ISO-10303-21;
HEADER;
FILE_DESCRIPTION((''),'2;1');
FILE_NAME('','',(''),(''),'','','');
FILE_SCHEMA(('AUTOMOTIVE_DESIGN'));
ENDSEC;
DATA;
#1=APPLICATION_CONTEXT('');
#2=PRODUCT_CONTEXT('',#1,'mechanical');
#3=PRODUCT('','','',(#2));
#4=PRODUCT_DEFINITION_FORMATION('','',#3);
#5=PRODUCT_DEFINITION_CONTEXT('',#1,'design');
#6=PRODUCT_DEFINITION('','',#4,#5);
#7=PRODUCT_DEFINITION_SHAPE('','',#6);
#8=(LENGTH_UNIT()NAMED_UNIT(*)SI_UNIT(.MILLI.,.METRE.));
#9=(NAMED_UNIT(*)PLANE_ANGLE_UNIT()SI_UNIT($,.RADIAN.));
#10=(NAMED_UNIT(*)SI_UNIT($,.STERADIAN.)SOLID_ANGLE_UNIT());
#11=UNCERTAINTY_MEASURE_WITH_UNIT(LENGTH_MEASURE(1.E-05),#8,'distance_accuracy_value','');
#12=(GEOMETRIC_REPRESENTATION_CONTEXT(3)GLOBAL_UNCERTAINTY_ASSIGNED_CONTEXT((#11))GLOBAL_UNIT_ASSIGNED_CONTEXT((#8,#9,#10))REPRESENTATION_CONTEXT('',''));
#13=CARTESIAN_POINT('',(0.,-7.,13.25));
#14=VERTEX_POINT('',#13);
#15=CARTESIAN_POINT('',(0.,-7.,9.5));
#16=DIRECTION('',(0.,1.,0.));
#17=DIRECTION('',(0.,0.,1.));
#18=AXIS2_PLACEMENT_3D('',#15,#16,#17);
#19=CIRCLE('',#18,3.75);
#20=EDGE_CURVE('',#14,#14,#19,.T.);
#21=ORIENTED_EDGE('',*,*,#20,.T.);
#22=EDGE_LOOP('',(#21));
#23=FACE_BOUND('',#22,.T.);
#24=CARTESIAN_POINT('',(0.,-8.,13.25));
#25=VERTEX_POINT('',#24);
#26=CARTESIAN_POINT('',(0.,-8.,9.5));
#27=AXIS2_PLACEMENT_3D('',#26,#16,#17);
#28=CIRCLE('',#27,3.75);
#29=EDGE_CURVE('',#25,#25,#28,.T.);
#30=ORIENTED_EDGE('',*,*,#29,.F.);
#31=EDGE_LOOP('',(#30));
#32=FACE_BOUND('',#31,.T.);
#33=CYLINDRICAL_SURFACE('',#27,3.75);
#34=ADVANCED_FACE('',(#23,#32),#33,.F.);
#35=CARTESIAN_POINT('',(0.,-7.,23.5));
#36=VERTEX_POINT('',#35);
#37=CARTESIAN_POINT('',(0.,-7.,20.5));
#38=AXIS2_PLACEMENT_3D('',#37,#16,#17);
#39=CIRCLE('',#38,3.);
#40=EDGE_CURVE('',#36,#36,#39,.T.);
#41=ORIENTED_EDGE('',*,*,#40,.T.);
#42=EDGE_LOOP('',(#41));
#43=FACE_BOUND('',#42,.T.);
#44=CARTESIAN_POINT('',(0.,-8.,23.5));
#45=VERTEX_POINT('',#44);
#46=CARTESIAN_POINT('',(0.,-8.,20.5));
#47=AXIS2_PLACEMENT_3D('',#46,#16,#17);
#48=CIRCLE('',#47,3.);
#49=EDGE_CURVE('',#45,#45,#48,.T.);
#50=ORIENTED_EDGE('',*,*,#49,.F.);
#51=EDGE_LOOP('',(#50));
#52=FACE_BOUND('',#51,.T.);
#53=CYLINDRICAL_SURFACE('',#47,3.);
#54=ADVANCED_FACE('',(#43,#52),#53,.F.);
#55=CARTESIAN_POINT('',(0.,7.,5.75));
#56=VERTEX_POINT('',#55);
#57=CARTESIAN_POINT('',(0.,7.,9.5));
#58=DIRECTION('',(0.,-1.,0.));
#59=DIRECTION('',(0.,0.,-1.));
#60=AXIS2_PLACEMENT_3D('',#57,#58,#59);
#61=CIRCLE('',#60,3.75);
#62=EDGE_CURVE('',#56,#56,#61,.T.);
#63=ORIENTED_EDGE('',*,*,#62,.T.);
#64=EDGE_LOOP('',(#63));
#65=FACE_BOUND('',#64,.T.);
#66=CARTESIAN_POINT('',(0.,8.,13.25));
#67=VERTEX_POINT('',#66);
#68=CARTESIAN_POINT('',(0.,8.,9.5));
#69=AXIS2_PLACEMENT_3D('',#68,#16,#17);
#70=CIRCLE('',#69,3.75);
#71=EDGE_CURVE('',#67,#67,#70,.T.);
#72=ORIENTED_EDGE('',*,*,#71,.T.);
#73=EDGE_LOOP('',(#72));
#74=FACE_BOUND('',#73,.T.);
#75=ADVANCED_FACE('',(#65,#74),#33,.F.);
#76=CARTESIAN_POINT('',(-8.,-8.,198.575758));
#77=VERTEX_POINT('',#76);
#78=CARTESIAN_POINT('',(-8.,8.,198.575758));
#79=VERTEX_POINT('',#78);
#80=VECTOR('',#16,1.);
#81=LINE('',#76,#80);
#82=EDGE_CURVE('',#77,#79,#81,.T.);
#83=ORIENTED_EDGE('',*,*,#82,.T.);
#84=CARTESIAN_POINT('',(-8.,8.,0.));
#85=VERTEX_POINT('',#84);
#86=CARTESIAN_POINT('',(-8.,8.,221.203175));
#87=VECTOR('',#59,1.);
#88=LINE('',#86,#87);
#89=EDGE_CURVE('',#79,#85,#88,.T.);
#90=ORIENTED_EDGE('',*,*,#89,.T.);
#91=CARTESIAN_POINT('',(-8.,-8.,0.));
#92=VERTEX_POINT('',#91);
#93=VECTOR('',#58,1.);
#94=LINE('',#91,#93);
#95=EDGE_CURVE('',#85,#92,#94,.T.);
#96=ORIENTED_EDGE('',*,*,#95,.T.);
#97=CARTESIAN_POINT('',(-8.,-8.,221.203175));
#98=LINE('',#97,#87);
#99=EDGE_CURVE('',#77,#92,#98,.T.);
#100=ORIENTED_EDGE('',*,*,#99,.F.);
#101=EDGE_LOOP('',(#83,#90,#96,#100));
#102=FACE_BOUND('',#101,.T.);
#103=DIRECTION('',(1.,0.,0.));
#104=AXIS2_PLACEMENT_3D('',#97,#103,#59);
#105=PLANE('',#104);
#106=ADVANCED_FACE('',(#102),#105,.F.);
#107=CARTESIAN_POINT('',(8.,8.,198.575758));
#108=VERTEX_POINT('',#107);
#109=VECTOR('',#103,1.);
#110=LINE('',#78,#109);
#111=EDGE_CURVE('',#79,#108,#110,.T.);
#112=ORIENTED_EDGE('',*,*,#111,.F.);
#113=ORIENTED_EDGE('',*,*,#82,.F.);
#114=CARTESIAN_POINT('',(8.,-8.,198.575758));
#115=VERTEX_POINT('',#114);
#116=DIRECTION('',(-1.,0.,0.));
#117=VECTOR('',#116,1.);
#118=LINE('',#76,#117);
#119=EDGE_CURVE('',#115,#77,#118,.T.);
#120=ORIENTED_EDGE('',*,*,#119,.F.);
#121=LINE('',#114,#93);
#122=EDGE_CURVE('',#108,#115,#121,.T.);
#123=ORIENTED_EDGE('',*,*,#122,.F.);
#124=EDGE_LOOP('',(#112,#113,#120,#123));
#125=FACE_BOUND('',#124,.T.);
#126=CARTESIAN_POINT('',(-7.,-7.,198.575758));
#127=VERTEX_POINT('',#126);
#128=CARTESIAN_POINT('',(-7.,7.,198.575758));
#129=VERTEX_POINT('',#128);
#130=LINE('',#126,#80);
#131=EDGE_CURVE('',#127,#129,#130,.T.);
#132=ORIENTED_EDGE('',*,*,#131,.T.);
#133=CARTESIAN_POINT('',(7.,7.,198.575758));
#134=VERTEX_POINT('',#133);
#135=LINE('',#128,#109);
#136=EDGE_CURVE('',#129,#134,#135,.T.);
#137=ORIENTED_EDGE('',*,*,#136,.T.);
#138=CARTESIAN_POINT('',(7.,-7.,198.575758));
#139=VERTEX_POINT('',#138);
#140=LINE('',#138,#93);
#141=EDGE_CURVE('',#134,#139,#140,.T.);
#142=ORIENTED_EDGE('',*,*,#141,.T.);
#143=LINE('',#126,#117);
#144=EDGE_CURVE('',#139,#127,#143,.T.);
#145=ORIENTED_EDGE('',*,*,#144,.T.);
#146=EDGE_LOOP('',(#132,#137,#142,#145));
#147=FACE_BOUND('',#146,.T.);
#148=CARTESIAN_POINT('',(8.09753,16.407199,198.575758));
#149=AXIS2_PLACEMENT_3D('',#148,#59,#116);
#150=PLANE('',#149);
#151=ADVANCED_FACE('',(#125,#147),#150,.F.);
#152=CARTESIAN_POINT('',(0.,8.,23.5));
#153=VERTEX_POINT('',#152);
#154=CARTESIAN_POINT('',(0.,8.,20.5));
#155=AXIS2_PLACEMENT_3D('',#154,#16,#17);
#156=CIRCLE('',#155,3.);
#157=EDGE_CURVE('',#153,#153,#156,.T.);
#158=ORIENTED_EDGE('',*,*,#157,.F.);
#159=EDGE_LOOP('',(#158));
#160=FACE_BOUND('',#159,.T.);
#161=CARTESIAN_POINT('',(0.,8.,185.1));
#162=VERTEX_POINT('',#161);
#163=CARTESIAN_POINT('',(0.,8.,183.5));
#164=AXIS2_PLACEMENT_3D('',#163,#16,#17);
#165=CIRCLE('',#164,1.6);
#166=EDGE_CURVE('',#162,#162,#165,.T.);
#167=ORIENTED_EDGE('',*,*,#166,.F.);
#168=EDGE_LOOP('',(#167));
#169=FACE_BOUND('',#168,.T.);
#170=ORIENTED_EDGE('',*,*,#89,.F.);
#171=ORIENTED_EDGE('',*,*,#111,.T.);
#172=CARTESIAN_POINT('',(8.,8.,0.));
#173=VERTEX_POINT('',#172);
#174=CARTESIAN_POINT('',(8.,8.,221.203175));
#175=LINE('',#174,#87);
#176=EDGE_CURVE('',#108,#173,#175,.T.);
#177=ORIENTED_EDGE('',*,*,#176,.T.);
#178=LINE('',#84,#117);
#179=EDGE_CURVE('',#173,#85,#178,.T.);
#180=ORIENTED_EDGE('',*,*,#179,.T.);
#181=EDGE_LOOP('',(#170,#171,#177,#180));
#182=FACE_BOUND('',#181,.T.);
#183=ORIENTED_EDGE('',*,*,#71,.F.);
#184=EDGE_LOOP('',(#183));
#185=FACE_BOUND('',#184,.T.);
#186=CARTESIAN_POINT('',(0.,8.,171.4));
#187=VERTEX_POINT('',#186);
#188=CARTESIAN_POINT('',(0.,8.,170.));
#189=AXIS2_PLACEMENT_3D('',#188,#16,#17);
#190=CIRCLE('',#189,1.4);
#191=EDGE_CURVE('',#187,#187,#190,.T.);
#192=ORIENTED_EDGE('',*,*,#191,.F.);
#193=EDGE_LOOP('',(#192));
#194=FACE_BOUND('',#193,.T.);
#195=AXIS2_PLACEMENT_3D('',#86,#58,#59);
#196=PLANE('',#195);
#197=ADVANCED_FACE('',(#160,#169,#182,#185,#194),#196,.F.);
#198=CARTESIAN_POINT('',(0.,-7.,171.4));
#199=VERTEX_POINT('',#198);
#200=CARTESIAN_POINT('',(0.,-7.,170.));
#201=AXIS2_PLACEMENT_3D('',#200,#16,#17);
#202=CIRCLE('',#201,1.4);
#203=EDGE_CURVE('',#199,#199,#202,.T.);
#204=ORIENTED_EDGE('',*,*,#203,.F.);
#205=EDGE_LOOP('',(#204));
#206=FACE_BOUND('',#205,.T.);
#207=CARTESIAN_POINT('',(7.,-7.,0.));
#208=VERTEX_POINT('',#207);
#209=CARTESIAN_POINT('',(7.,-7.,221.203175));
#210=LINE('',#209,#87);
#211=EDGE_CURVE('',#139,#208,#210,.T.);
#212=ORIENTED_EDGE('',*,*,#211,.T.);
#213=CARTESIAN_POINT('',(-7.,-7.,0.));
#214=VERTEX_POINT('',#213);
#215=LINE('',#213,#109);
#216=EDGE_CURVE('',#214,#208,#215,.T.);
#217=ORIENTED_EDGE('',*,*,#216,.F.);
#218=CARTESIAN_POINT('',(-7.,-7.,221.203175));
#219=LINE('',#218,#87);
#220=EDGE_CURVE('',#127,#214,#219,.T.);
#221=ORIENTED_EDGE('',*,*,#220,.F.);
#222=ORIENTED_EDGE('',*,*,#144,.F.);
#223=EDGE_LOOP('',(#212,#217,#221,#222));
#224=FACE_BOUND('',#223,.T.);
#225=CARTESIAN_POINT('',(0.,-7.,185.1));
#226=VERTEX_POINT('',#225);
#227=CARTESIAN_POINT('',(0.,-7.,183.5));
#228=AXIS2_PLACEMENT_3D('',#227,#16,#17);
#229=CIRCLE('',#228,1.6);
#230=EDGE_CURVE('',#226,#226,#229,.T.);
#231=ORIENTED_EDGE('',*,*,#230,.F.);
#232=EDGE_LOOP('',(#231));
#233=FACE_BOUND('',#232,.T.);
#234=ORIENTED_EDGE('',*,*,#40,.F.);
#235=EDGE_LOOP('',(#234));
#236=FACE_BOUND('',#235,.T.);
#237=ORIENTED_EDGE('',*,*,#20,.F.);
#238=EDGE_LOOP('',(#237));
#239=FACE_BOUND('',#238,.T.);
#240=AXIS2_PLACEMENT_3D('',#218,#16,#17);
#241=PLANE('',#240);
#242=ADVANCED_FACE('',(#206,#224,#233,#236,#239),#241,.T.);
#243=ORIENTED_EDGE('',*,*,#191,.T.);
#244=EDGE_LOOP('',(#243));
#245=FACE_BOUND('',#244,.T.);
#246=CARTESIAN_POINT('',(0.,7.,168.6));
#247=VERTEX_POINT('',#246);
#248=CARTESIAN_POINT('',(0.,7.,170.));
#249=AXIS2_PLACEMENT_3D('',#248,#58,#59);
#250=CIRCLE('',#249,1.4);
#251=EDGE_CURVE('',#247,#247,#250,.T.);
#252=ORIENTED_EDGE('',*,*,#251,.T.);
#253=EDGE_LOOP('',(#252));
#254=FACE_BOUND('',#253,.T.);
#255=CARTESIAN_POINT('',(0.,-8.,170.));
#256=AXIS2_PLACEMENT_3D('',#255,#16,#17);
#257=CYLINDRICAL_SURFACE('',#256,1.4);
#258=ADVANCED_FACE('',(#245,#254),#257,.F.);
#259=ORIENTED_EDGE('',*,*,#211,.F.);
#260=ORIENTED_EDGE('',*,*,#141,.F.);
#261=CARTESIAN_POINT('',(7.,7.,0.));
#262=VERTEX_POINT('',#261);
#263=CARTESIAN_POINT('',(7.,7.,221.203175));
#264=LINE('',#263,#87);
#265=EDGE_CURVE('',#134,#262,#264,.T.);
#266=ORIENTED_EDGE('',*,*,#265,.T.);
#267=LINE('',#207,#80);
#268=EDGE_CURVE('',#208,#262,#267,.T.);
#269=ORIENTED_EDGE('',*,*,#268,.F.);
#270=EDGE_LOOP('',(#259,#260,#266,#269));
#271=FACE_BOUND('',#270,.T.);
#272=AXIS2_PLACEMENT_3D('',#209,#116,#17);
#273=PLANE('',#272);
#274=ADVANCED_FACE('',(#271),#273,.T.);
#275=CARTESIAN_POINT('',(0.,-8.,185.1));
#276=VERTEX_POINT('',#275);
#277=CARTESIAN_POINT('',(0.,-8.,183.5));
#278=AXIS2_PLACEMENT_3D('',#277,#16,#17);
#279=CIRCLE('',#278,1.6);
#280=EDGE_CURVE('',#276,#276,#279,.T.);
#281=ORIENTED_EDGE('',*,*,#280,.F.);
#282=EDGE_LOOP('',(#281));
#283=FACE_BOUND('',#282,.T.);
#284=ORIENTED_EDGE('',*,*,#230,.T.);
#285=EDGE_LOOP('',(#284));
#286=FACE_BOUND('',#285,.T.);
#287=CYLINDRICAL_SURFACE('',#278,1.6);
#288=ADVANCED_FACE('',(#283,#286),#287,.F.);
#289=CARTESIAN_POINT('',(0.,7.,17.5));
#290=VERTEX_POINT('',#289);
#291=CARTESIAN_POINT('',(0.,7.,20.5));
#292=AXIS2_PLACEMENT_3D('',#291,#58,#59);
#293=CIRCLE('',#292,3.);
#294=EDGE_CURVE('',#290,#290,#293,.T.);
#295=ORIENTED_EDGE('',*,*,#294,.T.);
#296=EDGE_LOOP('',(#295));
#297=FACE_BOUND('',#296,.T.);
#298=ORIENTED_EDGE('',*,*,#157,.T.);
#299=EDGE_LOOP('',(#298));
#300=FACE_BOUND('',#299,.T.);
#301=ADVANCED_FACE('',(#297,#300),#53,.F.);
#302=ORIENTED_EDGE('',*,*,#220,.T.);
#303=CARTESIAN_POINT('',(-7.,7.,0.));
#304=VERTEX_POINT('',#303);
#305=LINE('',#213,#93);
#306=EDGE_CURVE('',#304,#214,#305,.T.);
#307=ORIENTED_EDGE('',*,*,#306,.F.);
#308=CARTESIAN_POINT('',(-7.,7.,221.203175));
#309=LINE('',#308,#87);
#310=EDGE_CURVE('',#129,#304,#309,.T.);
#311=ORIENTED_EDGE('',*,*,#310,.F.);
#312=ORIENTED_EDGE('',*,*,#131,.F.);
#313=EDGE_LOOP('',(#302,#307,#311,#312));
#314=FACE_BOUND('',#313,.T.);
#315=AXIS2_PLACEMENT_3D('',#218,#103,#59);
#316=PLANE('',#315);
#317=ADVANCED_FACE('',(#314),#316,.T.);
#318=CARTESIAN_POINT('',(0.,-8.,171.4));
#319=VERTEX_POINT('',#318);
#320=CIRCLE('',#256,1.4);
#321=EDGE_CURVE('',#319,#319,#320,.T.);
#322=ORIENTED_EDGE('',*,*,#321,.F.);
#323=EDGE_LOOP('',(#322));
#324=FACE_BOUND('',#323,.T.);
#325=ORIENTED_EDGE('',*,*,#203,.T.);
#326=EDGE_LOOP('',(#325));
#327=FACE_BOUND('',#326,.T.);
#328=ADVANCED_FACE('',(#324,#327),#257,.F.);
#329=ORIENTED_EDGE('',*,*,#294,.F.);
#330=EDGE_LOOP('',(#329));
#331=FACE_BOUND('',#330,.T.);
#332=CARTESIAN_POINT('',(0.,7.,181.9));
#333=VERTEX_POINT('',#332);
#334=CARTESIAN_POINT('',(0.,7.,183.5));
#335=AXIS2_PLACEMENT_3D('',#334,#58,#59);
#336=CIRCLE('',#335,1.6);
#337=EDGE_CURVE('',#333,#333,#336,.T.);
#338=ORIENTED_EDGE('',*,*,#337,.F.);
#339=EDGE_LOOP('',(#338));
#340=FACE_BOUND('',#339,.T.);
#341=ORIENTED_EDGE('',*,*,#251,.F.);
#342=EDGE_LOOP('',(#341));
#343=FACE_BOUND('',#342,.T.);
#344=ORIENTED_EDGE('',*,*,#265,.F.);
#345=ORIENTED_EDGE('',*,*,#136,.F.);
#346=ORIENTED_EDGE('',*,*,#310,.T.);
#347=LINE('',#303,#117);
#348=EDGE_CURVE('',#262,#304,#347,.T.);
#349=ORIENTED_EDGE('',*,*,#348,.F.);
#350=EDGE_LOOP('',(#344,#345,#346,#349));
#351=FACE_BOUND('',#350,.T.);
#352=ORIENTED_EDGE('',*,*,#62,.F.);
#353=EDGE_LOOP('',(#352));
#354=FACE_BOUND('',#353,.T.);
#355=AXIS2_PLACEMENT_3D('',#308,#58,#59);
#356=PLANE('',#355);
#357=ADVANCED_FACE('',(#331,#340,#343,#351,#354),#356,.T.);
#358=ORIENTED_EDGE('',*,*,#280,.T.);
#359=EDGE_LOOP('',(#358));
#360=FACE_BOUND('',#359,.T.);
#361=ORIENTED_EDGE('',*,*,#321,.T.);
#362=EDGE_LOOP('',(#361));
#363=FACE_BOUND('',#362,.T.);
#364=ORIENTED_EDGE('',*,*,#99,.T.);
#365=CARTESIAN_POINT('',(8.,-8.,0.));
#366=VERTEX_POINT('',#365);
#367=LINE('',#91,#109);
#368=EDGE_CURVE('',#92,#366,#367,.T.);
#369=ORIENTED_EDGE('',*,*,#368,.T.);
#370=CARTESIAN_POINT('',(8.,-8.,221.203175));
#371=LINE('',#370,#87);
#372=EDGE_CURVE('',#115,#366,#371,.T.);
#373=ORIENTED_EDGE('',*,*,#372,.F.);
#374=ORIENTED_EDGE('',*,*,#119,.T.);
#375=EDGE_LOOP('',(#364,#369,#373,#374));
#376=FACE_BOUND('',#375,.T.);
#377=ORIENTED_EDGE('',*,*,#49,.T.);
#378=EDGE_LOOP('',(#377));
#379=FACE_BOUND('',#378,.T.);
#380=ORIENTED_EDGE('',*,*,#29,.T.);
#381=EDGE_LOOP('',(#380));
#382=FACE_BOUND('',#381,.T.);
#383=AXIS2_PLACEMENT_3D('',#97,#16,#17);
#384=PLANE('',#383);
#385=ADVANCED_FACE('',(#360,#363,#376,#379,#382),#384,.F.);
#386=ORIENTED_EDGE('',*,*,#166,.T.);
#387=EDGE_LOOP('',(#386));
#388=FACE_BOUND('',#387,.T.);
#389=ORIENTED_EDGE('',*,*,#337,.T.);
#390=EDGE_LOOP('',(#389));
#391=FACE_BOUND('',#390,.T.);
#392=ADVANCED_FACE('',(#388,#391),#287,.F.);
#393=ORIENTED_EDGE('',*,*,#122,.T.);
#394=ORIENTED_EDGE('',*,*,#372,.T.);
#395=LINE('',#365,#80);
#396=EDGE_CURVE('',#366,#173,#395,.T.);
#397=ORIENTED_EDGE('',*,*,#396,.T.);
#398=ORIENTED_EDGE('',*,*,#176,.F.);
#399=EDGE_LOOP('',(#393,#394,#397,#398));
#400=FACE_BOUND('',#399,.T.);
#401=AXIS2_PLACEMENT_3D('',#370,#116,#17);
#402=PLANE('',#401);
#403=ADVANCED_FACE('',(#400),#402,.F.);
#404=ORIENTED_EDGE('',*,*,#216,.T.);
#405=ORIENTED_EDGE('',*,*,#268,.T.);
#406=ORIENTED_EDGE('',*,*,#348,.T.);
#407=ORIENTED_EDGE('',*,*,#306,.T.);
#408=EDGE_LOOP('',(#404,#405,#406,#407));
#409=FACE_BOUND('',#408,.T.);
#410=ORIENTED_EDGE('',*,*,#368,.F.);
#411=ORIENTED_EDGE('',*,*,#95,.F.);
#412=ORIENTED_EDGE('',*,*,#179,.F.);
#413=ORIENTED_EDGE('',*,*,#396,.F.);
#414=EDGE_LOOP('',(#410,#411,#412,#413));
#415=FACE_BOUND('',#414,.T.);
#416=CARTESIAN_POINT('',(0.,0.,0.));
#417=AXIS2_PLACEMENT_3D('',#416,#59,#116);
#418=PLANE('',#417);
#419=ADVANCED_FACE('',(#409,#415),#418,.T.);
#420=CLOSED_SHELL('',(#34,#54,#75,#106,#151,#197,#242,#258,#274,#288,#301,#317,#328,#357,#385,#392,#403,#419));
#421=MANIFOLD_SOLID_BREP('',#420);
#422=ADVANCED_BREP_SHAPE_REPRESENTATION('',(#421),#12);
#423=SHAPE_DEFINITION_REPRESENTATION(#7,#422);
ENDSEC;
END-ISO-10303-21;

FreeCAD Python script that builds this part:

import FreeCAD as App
import Part
import Sketcher

V = App.Vector

doc = App.newDocument("Part")
params = doc.addObject("Spreadsheet::Sheet", "Params")
for row, (alias, value) in enumerate([
    ("sketch1_width", "16 mm"),
    ("sketch1_width2", "14 mm"),
    ("pad1_length", "198.575758 mm"),
    ("sketch2_diameter", "6 mm"),
    ("sketch2_diameter2", "7.5 mm"),
    ("sketch2_diameter3", "2.8 mm"),
    ("sketch2_diameter4", "3.2 mm"),
], start=1):
    params.set(f"A{row}", alias)
    params.set(f"B{row}", "=" + value)
    params.setAlias(f"B{row}", alias)

body = doc.addObject("PartDesign::Body", "Body")

sketch1 = doc.addObject("Sketcher::SketchObject", "Sketch")
body.addObject(sketch1)
sketch1.AttachmentSupport = (doc.XY_Plane, [""])
sketch1.MapMode = "FlatFace"
sketch1.addGeometry(Part.LineSegment(V(-8, 8, 0), V(-8, -8, 0)), False)
sketch1.addGeometry(Part.LineSegment(V(-8, -8, 0), V(8, -8, 0)), False)
sketch1.addGeometry(Part.LineSegment(V(8, -8, 0), V(8, 8, 0)), False)
sketch1.addGeometry(Part.LineSegment(V(8, 8, 0), V(-8, 8, 0)), False)
sketch1.addGeometry(Part.LineSegment(V(7, -7, 0), V(-7, -7, 0)), False)
sketch1.addGeometry(Part.LineSegment(V(-7, -7, 0), V(-7, 7, 0)), False)
sketch1.addGeometry(Part.LineSegment(V(-7, 7, 0), V(7, 7, 0)), False)
sketch1.addGeometry(Part.LineSegment(V(7, 7, 0), V(7, -7, 0)), False)
sketch1.addConstraint(Sketcher.Constraint("Coincident", 0, 2, 1, 1))
sketch1.addConstraint(Sketcher.Constraint("Coincident", 1, 2, 2, 1))
sketch1.addConstraint(Sketcher.Constraint("Coincident", 2, 2, 3, 1))
sketch1.addConstraint(Sketcher.Constraint("Coincident", 3, 2, 0, 1))
sketch1.addConstraint(Sketcher.Constraint("Coincident", 4, 2, 5, 1))
sketch1.addConstraint(Sketcher.Constraint("Coincident", 5, 2, 6, 1))
sketch1.addConstraint(Sketcher.Constraint("Coincident", 6, 2, 7, 1))
sketch1.addConstraint(Sketcher.Constraint("Coincident", 7, 2, 4, 1))
sketch1.addConstraint(Sketcher.Constraint("Vertical", 0))
sketch1.addConstraint(Sketcher.Constraint("Horizontal", 1))
sketch1.addConstraint(Sketcher.Constraint("Vertical", 2))
sketch1.addConstraint(Sketcher.Constraint("Horizontal", 3))
sketch1.addConstraint(Sketcher.Constraint("Horizontal", 4))
sketch1.addConstraint(Sketcher.Constraint("Vertical", 5))
sketch1.addConstraint(Sketcher.Constraint("Horizontal", 6))
sketch1.addConstraint(Sketcher.Constraint("Vertical", 7))
sketch1.addConstraint(Sketcher.Constraint("Symmetric", 0, 2, 2, 2, -1, 1))
sketch1.addConstraint(Sketcher.Constraint("Symmetric", 4, 2, 6, 2, -1, 1))
sketch1.addConstraint(Sketcher.Constraint("Equal", 3, 0))
sketch1.addConstraint(Sketcher.Constraint("Equal", 6, 5))
sketch1.addConstraint(Sketcher.Constraint("DistanceX", 1, 1, 1, 2, 16.0))
sketch1.addConstraint(Sketcher.Constraint("DistanceX", 4, 2, 4, 1, 14.0))
sketch1.setExpression("Constraints[20]", "Params.sketch1_width")
sketch1.setExpression("Constraints[21]", "Params.sketch1_width2")
pad1 = doc.addObject("PartDesign::Pad", "Pad")
body.addObject(pad1)
pad1.Profile = sketch1
pad1.setExpression("Length", "Params.pad1_length")

sketch2 = doc.addObject("Sketcher::SketchObject", "Sketch001")
body.addObject(sketch2)
sketch2.AttachmentSupport = (doc.XZ_Plane, [""])
sketch2.MapMode = "FlatFace"
sketch2.AttachmentOffset = App.Placement(V(0, 0, -8), App.Rotation())
sketch2.addGeometry(Part.Circle(V(0, 9.5, 0), V(0, 0, 1), 3.8), False)
sketch2.addGeometry(Part.Circle(V(0, 20.5, 0), V(0, 0, 1), 3), False)
sketch2.addGeometry(Part.Circle(V(0, 170, 0), V(0, 0, 1), 1.4), False)
sketch2.addGeometry(Part.Circle(V(0, 183.5, 0), V(0, 0, 1), 1.6), False)
sketch2.addConstraint(Sketcher.Constraint("PointOnObject", 0, 3, -2))
sketch2.addConstraint(Sketcher.Constraint("PointOnObject", 1, 3, -2))
sketch2.addConstraint(Sketcher.Constraint("PointOnObject", 2, 3, -2))
sketch2.addConstraint(Sketcher.Constraint("PointOnObject", 3, 3, -2))
sketch2.addConstraint(Sketcher.Constraint("Diameter", 1, 6.0))
sketch2.addConstraint(Sketcher.Constraint("Diameter", 0, 7.5))
sketch2.addConstraint(Sketcher.Constraint("Diameter", 2, 2.8))
sketch2.addConstraint(Sketcher.Constraint("Diameter", 3, 3.2))
sketch2.addConstraint(Sketcher.Constraint("DistanceY", -1, 1, 2, 3, 170.0))
sketch2.addConstraint(Sketcher.Constraint("DistanceY", 0, 3, 1, 3, 11.0))
sketch2.addConstraint(Sketcher.Constraint("DistanceY", 1, 3, 3, 3, 163.0))
sketch2.addConstraint(Sketcher.Constraint("DistanceY", -1, 1, 0, 3, 9.5))
sketch2.setExpression("Constraints[4]", "Params.sketch2_diameter")
sketch2.setExpression("Constraints[5]", "Params.sketch2_diameter2")
sketch2.setExpression("Constraints[6]", "Params.sketch2_diameter3")
sketch2.setExpression("Constraints[7]", "Params.sketch2_diameter4")
pocket1 = doc.addObject("PartDesign::Pocket", "Pocket")
body.addObject(pocket1)
pocket1.Profile = sketch2
pocket1.Type = "ThroughAll"
pocket1.Reversed = True

doc.recompute()
